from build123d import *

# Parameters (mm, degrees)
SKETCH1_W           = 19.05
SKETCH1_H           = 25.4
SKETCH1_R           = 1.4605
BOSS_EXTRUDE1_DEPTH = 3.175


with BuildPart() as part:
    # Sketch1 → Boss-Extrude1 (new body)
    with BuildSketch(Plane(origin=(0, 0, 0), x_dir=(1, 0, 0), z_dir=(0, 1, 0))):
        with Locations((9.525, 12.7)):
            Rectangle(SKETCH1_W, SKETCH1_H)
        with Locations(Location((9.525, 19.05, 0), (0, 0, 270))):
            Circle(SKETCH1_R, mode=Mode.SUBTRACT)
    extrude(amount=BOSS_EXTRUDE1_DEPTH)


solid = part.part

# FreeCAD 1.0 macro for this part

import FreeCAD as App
import Part
import Sketcher
from FreeCAD import Vector
Q = App.Units.Quantity


def add_polygon(sketch, points):
    """Adds a closed chain of lines whose ends are joined by coincident constraints."""
    first, n = sketch.GeometryCount, len(points)
    for a, b in zip(points, points[1:] + points[:1]):
        sketch.addGeometry(Part.LineSegment(App.Vector(*a, 0), App.Vector(*b, 0)), False)
    for i in range(n):
        sketch.addConstraint(Sketcher.Constraint("Coincident", first + i, 2, first + (i + 1) % n, 1))

doc = App.newDocument("Part")
body = doc.addObject("PartDesign::Body", "Body")

sketch1 = body.newObject("Sketcher::SketchObject", "Sketch")
sketch1.AttachmentSupport = (doc.getObject("XZ_Plane"), [""])
sketch1.MapMode = "FlatFace"
add_polygon(sketch1, [(0, -25.4), (0, 0), (19.05, 0), (19.05, -25.4)])
sketch1.addGeometry(Part.Circle(Vector(9.525, -19.05, 0), Vector(0, 0, 1), 1.4605), False)
sketch1.addConstraint([
    Sketcher.Constraint("Vertical", 0),
    Sketcher.Constraint("Horizontal", 1),
    Sketcher.Constraint("Vertical", 2),
    Sketcher.Constraint("Horizontal", 3),
    Sketcher.Constraint("Coincident", 0, 2, -1, 1),
    Sketcher.Constraint("DistanceY", 0, 1, 0, 2, Q("1 in")),
    Sketcher.Constraint("Diameter", 4, Q("0.115 in")),
    Sketcher.Constraint("DistanceX", 1, 1, 1, 2, Q("0.75 in")),
    Sketcher.Constraint("DistanceY", 4, 3, -1, 1, Q("0.75 in")),
    Sketcher.Constraint("DistanceX", -1, 1, 4, 3, Q("0.375 in")),
])
pad1 = body.newObject("PartDesign::Pad", "Pad")
pad1.Profile = sketch1
pad1.Length = Q("0.125 in")
pad1.Reversed = True

doc.recompute()
